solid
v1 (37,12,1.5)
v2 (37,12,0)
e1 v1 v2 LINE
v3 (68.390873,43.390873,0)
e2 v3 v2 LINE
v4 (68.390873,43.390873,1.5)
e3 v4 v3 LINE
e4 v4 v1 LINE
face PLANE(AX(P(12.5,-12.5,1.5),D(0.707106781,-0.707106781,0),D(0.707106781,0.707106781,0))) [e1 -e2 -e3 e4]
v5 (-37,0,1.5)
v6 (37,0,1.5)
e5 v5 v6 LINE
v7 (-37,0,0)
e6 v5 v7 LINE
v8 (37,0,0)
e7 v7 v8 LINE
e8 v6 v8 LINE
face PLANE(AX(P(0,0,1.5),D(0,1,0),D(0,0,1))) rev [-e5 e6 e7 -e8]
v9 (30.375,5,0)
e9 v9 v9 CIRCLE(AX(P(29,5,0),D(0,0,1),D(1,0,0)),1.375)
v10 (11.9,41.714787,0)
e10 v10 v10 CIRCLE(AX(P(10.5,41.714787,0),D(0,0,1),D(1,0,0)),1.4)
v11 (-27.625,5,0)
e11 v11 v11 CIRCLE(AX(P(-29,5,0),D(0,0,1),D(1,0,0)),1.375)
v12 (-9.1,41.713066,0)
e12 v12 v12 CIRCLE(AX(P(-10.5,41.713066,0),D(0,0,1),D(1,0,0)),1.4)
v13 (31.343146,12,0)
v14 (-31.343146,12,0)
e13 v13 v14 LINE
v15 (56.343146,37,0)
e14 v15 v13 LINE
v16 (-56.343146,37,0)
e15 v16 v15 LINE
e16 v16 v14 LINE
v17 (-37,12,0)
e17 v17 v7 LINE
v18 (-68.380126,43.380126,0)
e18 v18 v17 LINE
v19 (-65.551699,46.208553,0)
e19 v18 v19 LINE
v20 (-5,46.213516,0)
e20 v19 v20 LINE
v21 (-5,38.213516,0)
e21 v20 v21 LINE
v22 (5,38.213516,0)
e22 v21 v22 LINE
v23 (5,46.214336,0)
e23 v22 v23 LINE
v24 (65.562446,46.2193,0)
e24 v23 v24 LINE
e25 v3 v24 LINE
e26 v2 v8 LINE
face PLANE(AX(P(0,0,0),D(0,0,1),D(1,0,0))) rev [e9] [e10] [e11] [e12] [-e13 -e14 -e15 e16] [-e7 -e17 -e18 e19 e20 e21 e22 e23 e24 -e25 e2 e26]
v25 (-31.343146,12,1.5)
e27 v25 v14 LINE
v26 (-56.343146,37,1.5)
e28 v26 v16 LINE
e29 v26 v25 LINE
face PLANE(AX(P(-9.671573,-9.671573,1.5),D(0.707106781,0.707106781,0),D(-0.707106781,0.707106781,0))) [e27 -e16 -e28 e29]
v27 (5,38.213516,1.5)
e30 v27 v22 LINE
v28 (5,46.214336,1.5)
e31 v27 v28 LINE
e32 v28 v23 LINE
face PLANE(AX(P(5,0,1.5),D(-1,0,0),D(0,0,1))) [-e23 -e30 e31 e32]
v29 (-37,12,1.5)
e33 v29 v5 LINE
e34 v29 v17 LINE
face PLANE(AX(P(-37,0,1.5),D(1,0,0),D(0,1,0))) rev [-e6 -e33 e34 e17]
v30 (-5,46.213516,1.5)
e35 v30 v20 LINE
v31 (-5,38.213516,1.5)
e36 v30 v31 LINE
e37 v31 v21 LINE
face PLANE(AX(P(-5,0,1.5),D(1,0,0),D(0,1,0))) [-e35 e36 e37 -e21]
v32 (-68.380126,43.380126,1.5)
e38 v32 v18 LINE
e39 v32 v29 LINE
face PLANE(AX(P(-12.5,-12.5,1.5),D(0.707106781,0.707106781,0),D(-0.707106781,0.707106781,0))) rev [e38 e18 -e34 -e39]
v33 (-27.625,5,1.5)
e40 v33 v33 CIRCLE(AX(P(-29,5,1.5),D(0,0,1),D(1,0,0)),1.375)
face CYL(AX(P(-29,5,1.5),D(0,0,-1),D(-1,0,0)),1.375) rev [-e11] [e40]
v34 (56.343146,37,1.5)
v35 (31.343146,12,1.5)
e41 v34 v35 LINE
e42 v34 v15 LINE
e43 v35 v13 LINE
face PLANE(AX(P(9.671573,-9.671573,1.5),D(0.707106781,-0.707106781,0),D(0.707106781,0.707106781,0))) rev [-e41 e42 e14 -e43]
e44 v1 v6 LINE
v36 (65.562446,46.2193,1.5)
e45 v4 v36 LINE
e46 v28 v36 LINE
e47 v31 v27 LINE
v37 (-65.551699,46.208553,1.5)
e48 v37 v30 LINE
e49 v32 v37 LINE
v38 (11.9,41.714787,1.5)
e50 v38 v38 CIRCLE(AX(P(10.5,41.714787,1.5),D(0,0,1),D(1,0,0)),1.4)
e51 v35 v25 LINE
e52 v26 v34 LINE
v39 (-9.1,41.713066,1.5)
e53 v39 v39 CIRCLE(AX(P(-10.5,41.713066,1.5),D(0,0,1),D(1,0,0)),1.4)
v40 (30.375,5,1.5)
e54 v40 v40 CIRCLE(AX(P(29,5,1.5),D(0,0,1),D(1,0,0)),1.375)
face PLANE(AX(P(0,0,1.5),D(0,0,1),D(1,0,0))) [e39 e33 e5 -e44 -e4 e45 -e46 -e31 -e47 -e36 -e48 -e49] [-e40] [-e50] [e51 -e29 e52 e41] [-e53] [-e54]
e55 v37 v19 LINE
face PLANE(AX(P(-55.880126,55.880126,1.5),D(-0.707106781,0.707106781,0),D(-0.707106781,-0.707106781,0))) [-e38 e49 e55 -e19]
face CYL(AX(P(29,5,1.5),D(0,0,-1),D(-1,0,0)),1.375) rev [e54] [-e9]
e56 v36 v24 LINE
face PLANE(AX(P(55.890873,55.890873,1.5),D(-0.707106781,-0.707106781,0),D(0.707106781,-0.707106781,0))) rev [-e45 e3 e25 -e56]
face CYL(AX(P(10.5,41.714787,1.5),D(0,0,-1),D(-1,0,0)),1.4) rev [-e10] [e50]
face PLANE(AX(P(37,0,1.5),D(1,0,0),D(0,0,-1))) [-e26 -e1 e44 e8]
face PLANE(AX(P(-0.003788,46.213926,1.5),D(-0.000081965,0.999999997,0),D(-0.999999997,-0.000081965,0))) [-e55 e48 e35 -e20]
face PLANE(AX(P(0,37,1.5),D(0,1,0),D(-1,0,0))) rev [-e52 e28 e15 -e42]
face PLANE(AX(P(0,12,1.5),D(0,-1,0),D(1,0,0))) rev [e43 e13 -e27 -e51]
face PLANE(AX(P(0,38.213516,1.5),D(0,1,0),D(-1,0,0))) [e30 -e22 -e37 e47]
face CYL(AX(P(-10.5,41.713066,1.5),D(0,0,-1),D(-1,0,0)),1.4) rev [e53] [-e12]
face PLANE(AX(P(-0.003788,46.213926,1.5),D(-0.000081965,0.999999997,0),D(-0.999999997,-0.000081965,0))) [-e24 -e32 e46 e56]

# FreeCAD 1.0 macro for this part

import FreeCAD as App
import Part
import Sketcher
from FreeCAD import Vector
Q = App.Units.Quantity

doc = App.newDocument("Part")
body = doc.addObject("PartDesign::Body", "Body")

# Sketch on XY plane
sketch1 = body.newObject("Sketcher::SketchObject", "Sketch")
sketch1.AttachmentSupport = (doc.getObject("XY_Plane"), [""])
sketch1.MapMode = "FlatFace"
sketch1.addGeometry([
    Part.LineSegment(Vector(37, 0, 0), Vector(37, 12, 0)),  # 0
    Part.LineSegment(Vector(37, 12, 0), Vector(68.4, 43.4, 0)),  # 1
    Part.LineSegment(Vector(68.4, 43.4, 0), Vector(65.6, 46.2, 0)),  # 2
    Part.LineSegment(Vector(65.6, 46.2, 0), Vector(5, 46.2, 0)),  # 3
    Part.LineSegment(Vector(5, 46.2, 0), Vector(5, 38.2, 0)),  # 4
    Part.LineSegment(Vector(5, 38.2, 0), Vector(-5, 38.2, 0)),  # 5
    Part.LineSegment(Vector(-5, 38.2, 0), Vector(-5, 46.2, 0)),  # 6
    Part.LineSegment(Vector(-5, 46.2, 0), Vector(-65.6, 46.2, 0)),  # 7
    Part.LineSegment(Vector(-65.6, 46.2, 0), Vector(-68.4, 43.4, 0)),  # 8
    Part.LineSegment(Vector(-68.4, 43.4, 0), Vector(-37, 12, 0)),  # 9
    Part.LineSegment(Vector(-37, 12, 0), Vector(-37, 0, 0)),  # 10
    Part.LineSegment(Vector(-37, 0, 0), Vector(37, 0, 0)),  # 11
    Part.LineSegment(Vector(56.3, 37, 0), Vector(31.3, 12, 0)),  # 12
    Part.LineSegment(Vector(31.3, 12, 0), Vector(-31.3, 12, 0)),  # 13
    Part.LineSegment(Vector(-31.3, 12, 0), Vector(-56.3, 37, 0)),  # 14
    Part.LineSegment(Vector(-56.3, 37, 0), Vector(56.3, 37, 0)),  # 15
    Part.Circle(Vector(29, 5, 0), Vector(0, 0, 1), 1.4),  # 16
    Part.Circle(Vector(-29, 5, 0), Vector(0, 0, 1), 1.4),  # 17
    Part.Circle(Vector(-10.5, 41.7, 0), Vector(0, 0, 1), 1.4),  # 18
    Part.Circle(Vector(10.5, 41.7, 0), Vector(0, 0, 1), 1.4),  # 19
], False)
sketch1.addConstraint([
    Sketcher.Constraint("Coincident", 0, 2, 1, 1),
    Sketcher.Constraint("Coincident", 1, 2, 2, 1),
    Sketcher.Constraint("Coincident", 2, 2, 3, 1),
    Sketcher.Constraint("Coincident", 3, 2, 4, 1),
    Sketcher.Constraint("Coincident", 4, 2, 5, 1),
    Sketcher.Constraint("Coincident", 5, 2, 6, 1),
    Sketcher.Constraint("Coincident", 6, 2, 7, 1),
    Sketcher.Constraint("Coincident", 7, 2, 8, 1),
    Sketcher.Constraint("Coincident", 8, 2, 9, 1),
    Sketcher.Constraint("Coincident", 9, 2, 10, 1),
    Sketcher.Constraint("Coincident", 10, 2, 11, 1),
    Sketcher.Constraint("Coincident", 11, 2, 0, 1),
    Sketcher.Constraint("Coincident", 12, 2, 13, 1),
    Sketcher.Constraint("Coincident", 13, 2, 14, 1),
    Sketcher.Constraint("Coincident", 14, 2, 15, 1),
    Sketcher.Constraint("Coincident", 15, 2, 12, 1),
    Sketcher.Constraint("Vertical", 0),
    Sketcher.Constraint("Vertical", 4),
    Sketcher.Constraint("Horizontal", 5),
    Sketcher.Constraint("Vertical", 6),
    Sketcher.Constraint("Vertical", 10),
    Sketcher.Constraint("Horizontal", 11),
    Sketcher.Constraint("Horizontal", 13),
    Sketcher.Constraint("Horizontal", 15),
    Sketcher.Constraint("Equal", 16, 17),
    Sketcher.Constraint("Equal", 18, 19),
    Sketcher.Constraint("Symmetric", 10, 2, 11, 2, -1, 1),
    Sketcher.Constraint("Symmetric", 16, 3, 17, 3, -2),
    Sketcher.Constraint("Perpendicular", 1, 2),
    Sketcher.Constraint("Parallel", 3, 7),
    Sketcher.Constraint("Perpendicular", 2, 8),
    Sketcher.Constraint("Perpendicular", 8, 9),
    Sketcher.Constraint("Perpendicular", 9, 12),
    Sketcher.Constraint("Perpendicular", 12, 14),
    Sketcher.Constraint("Horizontal", 0, 2, 9, 2),
    Sketcher.Constraint("Horizontal", 9, 2, 12, 2),
    Sketcher.Constraint("Equal", 2, 8),
    Sketcher.Constraint("Equal", 12, 14),
    Sketcher.Constraint("Diameter", 18, Q("2.8 mm")),
    Sketcher.Constraint("Diameter", 16, Q("2.75 mm")),
    Sketcher.Constraint("DistanceX", 5, 2, 5, 1, Q("10 mm")),
    Sketcher.Constraint("DistanceX", 11, 1, 11, 2, Q("74 mm")),
    Sketcher.Constraint("DistanceY", 0, 1, 0, 2, Q("12 mm")),
    Sketcher.Constraint("DistanceY", 6, 1, 6, 2, Q("8 mm")),
    Sketcher.Constraint("Distance", 2, Q("4 mm")),
    Sketcher.Constraint("DistanceX", -1, 1, 16, 3, Q("29 mm")),
    Sketcher.Constraint("DistanceY", -1, 1, 16, 3, Q("5 mm")),
    Sketcher.Constraint("DistanceX", -1, 1, 3, 2, Q("5 mm")),
    Sketcher.Constraint("DistanceY", -1, 1, 14, 2, Q("37 mm")),
    Sketcher.Constraint("DistanceX", 18, 3, 19, 3, Q("21 mm")),
    Sketcher.Constraint("DistanceX", 18, 3, -1, 1, Q("10.5 mm")),
    Sketcher.Constraint("Distance", 1, Q("44.393398 mm")),
    Sketcher.Constraint("Distance", 7, Q("60.551699 mm")),
    Sketcher.Constraint("DistanceX", 13, 2, 13, 1, Q("62.686292 mm")),
    Sketcher.Constraint("DistanceY", 4, 2, 4, 1, Q("8.00082 mm")),
    Sketcher.Constraint("DistanceX", 15, 2, 2, 2, Q("9.2193 mm")),
    Sketcher.Constraint("DistanceY", 18, 3, 19, 3, Q("0.001721 mm")),
    Sketcher.Constraint("DistanceY", 19, 3, 3, 2, Q("4.499549 mm")),
])
pad1 = body.newObject("PartDesign::Pad", "Pad")
pad1.Profile = sketch1
pad1.Length = 1.5

doc.recompute()
